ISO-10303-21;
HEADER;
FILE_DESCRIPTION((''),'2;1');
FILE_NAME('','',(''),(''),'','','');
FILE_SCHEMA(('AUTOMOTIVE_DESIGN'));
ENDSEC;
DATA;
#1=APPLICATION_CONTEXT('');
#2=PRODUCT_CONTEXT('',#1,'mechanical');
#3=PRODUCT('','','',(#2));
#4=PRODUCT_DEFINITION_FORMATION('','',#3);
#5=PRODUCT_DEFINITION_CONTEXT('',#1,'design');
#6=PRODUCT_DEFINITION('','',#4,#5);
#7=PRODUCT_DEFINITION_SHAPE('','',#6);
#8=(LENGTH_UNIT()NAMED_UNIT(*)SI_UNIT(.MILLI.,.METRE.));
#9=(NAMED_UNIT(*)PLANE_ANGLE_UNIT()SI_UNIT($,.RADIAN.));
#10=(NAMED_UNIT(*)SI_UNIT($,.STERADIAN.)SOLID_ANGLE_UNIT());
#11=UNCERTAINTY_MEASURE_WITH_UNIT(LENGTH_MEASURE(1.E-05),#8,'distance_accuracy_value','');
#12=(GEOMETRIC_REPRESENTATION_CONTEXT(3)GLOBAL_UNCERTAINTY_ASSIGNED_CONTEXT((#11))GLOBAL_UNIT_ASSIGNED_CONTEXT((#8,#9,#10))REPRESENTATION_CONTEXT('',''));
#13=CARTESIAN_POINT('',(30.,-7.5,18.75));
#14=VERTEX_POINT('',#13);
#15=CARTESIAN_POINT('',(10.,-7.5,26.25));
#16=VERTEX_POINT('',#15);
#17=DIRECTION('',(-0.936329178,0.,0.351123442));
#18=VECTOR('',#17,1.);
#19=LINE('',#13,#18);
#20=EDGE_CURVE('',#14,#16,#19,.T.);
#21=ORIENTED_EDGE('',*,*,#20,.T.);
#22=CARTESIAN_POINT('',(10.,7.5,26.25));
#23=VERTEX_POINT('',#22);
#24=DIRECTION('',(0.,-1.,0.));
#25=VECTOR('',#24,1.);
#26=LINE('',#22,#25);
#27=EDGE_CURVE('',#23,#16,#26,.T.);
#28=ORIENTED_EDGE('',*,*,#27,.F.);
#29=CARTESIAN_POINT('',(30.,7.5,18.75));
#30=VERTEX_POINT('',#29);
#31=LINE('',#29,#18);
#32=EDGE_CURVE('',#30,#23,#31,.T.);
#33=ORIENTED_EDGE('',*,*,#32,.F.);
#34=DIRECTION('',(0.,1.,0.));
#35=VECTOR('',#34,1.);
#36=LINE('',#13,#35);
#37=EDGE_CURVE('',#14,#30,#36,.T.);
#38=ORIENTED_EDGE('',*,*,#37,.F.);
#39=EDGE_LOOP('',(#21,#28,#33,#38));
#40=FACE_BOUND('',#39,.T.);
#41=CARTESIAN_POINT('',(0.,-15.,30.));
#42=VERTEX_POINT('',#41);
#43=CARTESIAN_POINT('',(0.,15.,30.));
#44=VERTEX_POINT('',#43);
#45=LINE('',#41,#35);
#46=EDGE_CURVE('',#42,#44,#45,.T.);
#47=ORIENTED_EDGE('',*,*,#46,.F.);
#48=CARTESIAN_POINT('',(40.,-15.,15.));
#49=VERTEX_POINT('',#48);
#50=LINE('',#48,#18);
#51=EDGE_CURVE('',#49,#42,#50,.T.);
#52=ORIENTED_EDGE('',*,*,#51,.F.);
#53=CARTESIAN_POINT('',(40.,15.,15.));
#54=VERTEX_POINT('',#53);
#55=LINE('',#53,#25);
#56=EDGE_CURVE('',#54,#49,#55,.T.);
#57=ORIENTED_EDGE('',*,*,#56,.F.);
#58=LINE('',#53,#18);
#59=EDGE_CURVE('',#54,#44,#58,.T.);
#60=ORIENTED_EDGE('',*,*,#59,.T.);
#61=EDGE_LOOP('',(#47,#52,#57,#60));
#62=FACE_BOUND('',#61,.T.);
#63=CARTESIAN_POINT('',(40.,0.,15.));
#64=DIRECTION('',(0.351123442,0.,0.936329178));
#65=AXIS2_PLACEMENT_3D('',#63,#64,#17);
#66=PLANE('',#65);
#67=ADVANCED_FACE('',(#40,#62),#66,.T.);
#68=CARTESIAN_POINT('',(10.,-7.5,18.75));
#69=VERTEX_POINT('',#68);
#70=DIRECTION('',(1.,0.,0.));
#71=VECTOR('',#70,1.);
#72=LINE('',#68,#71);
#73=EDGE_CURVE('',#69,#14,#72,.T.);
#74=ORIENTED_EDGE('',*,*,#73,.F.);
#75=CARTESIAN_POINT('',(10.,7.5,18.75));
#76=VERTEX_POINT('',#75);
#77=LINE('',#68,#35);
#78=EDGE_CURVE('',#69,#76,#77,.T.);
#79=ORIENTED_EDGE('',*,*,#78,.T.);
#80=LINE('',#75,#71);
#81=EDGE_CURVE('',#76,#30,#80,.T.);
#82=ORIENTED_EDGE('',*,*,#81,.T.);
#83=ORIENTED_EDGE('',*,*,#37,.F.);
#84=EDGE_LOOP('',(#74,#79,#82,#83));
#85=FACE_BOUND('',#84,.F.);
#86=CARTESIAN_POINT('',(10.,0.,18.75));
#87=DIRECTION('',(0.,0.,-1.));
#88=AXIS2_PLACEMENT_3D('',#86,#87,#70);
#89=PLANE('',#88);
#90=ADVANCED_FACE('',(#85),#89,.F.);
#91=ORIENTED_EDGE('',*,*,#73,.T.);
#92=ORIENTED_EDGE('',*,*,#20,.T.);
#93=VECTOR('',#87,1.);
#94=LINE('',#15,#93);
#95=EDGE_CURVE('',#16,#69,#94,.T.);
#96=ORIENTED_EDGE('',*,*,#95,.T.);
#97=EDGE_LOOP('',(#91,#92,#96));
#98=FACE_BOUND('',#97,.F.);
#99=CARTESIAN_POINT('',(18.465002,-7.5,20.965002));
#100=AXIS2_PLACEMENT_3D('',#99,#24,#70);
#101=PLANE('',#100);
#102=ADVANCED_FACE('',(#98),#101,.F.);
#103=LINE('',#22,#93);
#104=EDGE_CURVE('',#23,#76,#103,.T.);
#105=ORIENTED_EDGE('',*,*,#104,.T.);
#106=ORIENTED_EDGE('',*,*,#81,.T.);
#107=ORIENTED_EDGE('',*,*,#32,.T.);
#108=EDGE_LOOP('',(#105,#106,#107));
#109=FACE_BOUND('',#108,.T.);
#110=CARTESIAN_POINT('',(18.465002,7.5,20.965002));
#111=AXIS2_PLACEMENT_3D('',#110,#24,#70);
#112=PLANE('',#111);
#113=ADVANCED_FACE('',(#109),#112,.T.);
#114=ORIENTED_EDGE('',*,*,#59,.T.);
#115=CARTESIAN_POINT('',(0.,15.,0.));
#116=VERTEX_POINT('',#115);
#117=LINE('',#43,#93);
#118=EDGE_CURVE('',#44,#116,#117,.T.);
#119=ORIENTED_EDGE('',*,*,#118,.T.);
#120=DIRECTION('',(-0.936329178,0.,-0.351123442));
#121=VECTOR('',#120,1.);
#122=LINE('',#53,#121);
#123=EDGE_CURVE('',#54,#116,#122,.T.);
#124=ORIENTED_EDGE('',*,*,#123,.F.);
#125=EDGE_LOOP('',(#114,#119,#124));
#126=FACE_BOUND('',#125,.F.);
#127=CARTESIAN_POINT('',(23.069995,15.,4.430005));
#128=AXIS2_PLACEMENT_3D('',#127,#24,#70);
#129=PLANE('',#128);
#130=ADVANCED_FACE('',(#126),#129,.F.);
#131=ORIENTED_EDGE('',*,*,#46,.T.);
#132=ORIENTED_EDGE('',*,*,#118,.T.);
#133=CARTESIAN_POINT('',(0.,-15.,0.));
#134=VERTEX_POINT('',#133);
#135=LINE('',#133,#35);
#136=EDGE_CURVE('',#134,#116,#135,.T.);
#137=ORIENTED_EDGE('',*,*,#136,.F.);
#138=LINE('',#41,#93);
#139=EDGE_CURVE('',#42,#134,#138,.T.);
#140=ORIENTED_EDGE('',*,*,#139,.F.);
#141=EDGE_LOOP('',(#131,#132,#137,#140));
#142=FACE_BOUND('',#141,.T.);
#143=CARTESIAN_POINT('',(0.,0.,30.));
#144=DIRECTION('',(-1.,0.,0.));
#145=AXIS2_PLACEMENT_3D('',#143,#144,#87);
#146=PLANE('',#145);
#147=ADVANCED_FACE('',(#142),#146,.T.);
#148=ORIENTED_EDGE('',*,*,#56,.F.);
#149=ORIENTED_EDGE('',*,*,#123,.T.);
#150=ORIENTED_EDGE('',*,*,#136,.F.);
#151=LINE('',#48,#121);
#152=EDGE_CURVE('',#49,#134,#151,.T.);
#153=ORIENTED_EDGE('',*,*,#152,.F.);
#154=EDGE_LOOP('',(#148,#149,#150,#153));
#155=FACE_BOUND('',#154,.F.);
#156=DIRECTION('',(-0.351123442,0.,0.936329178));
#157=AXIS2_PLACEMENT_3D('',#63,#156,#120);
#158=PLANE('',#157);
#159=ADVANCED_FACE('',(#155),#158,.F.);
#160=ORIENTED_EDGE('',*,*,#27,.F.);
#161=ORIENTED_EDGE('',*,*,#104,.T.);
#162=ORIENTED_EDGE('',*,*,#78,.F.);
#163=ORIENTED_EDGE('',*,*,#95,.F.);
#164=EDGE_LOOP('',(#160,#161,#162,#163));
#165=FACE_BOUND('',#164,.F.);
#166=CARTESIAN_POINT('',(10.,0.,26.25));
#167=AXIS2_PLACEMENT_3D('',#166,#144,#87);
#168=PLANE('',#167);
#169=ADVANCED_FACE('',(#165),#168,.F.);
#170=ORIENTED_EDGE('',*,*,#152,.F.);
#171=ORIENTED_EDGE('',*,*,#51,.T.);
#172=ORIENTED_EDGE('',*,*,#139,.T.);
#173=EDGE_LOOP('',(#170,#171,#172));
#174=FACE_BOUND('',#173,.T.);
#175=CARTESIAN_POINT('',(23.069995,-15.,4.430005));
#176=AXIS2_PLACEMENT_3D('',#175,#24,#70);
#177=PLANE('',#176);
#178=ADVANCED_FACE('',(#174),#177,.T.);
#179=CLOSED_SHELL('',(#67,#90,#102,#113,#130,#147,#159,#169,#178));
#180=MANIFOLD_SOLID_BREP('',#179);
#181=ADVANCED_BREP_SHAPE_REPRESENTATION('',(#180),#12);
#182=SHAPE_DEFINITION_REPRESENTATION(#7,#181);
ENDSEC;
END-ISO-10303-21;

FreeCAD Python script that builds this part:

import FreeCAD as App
import Part
import Sketcher
from FreeCAD import Vector
Q = App.Units.Quantity

doc = App.newDocument("Part")
body = doc.addObject("PartDesign::Body", "Body")

# Sketch on XZ plane
sketch1 = doc.addObject("Sketcher::SketchObject", "Sketch")
body.addObject(sketch1)
sketch1.AttachmentSupport = (doc.XZ_Plane, [""])
sketch1.MapMode = "FlatFace"
sketch1.addGeometry([
    Part.LineSegment(Vector(0, 0, 0), Vector(40, 0, 0)),
    Part.LineSegment(Vector(40, 0, 0), Vector(40, 15, 0)),
    Part.LineSegment(Vector(40, 15, 0), Vector(0, 30, 0)),
    Part.LineSegment(Vector(0, 30, 0), Vector(0, 0, 0)),
], False)
sketch1.addConstraint([
    Sketcher.Constraint("Coincident", 0, 2, 1, 1),
    Sketcher.Constraint("Coincident", 1, 2, 2, 1),
    Sketcher.Constraint("Coincident", 2, 2, 3, 1),
    Sketcher.Constraint("Coincident", 3, 2, 0, 1),
    Sketcher.Constraint("Horizontal", 0),
    Sketcher.Constraint("Vertical", 1),
    Sketcher.Constraint("Vertical", 3),
    Sketcher.Constraint("Coincident", 3, 2, -1, 1),
    Sketcher.Constraint("DistanceX", 0, 1, 0, 2, Q("40 mm")),
    Sketcher.Constraint("DistanceY", 1, 1, 1, 2, Q("15 mm")),
    Sketcher.Constraint("DistanceY", 3, 2, 3, 1, Q("30 mm")),
])
pad1 = doc.addObject("PartDesign::Pad", "Pad")
body.addObject(pad1)
pad1.Profile = sketch1
pad1.Length = 30
pad1.Midplane = True

# Sketch on XZ plane
sketch2 = doc.addObject("Sketcher::SketchObject", "Sketch001")
body.addObject(sketch2)
sketch2.AttachmentSupport = (doc.XZ_Plane, [""])
sketch2.MapMode = "FlatFace"
sketch2.addGeometry([
    Part.LineSegment(Vector(30, 19, 0), Vector(10, 26, 0)),
    Part.LineSegment(Vector(10, 26, 0), Vector(10, 19, 0)),
    Part.LineSegment(Vector(10, 19, 0), Vector(30, 19, 0)),
], False)
sketch2.addConstraint([
    Sketcher.Constraint("Coincident", 0, 2, 1, 1),
    Sketcher.Constraint("Coincident", 1, 2, 2, 1),
    Sketcher.Constraint("Coincident", 2, 2, 0, 1),
    Sketcher.Constraint("Vertical", 1),
    Sketcher.Constraint("Horizontal", 2),
    Sketcher.Constraint("DistanceX", 2, 1, 2, 2, Q("20 mm")),
    Sketcher.Constraint("DistanceY", 1, 2, 1, 1, Q("7.5 mm")),
    Sketcher.Constraint("DistanceX", -1, 1, 0, 2, Q("10 mm")),
    Sketcher.Constraint("DistanceY", -1, 1, 0, 2, Q("26.25 mm")),
])
pocket1 = doc.addObject("PartDesign::Pocket", "Pocket")
body.addObject(pocket1)
pocket1.Profile = sketch2
pocket1.Length = 15
pocket1.Midplane = True

# Sketch on XZ plane
sketch3 = doc.addObject("Sketcher::SketchObject", "Sketch002")
body.addObject(sketch3)
sketch3.AttachmentSupport = (doc.XZ_Plane, [""])
sketch3.MapMode = "FlatFace"
sketch3.addGeometry([
    Part.LineSegment(Vector(40, 15, 0), Vector(0, 0, 0)),
    Part.LineSegment(Vector(0, 0, 0), Vector(40, 0, 0)),
    Part.LineSegment(Vector(40, 0, 0), Vector(40, 15, 0)),
], False)
sketch3.addConstraint([
    Sketcher.Constraint("Coincident", 0, 2, 1, 1),
    Sketcher.Constraint("Coincident", 1, 2, 2, 1),
    Sketcher.Constraint("Coincident", 2, 2, 0, 1),
    Sketcher.Constraint("Horizontal", 1),
    Sketcher.Constraint("Vertical", 2),
    Sketcher.Constraint("Coincident", 0, 2, -1, 1),
    Sketcher.Constraint("DistanceX", 1, 1, 1, 2, Q("40 mm")),
    Sketcher.Constraint("DistanceY", 2, 1, 2, 2, Q("15 mm")),
])
pocket2 = doc.addObject("PartDesign::Pocket", "Pocket001")
body.addObject(pocket2)
pocket2.Profile = sketch3
pocket2.Length = 30
pocket2.Midplane = True

doc.recompute()
